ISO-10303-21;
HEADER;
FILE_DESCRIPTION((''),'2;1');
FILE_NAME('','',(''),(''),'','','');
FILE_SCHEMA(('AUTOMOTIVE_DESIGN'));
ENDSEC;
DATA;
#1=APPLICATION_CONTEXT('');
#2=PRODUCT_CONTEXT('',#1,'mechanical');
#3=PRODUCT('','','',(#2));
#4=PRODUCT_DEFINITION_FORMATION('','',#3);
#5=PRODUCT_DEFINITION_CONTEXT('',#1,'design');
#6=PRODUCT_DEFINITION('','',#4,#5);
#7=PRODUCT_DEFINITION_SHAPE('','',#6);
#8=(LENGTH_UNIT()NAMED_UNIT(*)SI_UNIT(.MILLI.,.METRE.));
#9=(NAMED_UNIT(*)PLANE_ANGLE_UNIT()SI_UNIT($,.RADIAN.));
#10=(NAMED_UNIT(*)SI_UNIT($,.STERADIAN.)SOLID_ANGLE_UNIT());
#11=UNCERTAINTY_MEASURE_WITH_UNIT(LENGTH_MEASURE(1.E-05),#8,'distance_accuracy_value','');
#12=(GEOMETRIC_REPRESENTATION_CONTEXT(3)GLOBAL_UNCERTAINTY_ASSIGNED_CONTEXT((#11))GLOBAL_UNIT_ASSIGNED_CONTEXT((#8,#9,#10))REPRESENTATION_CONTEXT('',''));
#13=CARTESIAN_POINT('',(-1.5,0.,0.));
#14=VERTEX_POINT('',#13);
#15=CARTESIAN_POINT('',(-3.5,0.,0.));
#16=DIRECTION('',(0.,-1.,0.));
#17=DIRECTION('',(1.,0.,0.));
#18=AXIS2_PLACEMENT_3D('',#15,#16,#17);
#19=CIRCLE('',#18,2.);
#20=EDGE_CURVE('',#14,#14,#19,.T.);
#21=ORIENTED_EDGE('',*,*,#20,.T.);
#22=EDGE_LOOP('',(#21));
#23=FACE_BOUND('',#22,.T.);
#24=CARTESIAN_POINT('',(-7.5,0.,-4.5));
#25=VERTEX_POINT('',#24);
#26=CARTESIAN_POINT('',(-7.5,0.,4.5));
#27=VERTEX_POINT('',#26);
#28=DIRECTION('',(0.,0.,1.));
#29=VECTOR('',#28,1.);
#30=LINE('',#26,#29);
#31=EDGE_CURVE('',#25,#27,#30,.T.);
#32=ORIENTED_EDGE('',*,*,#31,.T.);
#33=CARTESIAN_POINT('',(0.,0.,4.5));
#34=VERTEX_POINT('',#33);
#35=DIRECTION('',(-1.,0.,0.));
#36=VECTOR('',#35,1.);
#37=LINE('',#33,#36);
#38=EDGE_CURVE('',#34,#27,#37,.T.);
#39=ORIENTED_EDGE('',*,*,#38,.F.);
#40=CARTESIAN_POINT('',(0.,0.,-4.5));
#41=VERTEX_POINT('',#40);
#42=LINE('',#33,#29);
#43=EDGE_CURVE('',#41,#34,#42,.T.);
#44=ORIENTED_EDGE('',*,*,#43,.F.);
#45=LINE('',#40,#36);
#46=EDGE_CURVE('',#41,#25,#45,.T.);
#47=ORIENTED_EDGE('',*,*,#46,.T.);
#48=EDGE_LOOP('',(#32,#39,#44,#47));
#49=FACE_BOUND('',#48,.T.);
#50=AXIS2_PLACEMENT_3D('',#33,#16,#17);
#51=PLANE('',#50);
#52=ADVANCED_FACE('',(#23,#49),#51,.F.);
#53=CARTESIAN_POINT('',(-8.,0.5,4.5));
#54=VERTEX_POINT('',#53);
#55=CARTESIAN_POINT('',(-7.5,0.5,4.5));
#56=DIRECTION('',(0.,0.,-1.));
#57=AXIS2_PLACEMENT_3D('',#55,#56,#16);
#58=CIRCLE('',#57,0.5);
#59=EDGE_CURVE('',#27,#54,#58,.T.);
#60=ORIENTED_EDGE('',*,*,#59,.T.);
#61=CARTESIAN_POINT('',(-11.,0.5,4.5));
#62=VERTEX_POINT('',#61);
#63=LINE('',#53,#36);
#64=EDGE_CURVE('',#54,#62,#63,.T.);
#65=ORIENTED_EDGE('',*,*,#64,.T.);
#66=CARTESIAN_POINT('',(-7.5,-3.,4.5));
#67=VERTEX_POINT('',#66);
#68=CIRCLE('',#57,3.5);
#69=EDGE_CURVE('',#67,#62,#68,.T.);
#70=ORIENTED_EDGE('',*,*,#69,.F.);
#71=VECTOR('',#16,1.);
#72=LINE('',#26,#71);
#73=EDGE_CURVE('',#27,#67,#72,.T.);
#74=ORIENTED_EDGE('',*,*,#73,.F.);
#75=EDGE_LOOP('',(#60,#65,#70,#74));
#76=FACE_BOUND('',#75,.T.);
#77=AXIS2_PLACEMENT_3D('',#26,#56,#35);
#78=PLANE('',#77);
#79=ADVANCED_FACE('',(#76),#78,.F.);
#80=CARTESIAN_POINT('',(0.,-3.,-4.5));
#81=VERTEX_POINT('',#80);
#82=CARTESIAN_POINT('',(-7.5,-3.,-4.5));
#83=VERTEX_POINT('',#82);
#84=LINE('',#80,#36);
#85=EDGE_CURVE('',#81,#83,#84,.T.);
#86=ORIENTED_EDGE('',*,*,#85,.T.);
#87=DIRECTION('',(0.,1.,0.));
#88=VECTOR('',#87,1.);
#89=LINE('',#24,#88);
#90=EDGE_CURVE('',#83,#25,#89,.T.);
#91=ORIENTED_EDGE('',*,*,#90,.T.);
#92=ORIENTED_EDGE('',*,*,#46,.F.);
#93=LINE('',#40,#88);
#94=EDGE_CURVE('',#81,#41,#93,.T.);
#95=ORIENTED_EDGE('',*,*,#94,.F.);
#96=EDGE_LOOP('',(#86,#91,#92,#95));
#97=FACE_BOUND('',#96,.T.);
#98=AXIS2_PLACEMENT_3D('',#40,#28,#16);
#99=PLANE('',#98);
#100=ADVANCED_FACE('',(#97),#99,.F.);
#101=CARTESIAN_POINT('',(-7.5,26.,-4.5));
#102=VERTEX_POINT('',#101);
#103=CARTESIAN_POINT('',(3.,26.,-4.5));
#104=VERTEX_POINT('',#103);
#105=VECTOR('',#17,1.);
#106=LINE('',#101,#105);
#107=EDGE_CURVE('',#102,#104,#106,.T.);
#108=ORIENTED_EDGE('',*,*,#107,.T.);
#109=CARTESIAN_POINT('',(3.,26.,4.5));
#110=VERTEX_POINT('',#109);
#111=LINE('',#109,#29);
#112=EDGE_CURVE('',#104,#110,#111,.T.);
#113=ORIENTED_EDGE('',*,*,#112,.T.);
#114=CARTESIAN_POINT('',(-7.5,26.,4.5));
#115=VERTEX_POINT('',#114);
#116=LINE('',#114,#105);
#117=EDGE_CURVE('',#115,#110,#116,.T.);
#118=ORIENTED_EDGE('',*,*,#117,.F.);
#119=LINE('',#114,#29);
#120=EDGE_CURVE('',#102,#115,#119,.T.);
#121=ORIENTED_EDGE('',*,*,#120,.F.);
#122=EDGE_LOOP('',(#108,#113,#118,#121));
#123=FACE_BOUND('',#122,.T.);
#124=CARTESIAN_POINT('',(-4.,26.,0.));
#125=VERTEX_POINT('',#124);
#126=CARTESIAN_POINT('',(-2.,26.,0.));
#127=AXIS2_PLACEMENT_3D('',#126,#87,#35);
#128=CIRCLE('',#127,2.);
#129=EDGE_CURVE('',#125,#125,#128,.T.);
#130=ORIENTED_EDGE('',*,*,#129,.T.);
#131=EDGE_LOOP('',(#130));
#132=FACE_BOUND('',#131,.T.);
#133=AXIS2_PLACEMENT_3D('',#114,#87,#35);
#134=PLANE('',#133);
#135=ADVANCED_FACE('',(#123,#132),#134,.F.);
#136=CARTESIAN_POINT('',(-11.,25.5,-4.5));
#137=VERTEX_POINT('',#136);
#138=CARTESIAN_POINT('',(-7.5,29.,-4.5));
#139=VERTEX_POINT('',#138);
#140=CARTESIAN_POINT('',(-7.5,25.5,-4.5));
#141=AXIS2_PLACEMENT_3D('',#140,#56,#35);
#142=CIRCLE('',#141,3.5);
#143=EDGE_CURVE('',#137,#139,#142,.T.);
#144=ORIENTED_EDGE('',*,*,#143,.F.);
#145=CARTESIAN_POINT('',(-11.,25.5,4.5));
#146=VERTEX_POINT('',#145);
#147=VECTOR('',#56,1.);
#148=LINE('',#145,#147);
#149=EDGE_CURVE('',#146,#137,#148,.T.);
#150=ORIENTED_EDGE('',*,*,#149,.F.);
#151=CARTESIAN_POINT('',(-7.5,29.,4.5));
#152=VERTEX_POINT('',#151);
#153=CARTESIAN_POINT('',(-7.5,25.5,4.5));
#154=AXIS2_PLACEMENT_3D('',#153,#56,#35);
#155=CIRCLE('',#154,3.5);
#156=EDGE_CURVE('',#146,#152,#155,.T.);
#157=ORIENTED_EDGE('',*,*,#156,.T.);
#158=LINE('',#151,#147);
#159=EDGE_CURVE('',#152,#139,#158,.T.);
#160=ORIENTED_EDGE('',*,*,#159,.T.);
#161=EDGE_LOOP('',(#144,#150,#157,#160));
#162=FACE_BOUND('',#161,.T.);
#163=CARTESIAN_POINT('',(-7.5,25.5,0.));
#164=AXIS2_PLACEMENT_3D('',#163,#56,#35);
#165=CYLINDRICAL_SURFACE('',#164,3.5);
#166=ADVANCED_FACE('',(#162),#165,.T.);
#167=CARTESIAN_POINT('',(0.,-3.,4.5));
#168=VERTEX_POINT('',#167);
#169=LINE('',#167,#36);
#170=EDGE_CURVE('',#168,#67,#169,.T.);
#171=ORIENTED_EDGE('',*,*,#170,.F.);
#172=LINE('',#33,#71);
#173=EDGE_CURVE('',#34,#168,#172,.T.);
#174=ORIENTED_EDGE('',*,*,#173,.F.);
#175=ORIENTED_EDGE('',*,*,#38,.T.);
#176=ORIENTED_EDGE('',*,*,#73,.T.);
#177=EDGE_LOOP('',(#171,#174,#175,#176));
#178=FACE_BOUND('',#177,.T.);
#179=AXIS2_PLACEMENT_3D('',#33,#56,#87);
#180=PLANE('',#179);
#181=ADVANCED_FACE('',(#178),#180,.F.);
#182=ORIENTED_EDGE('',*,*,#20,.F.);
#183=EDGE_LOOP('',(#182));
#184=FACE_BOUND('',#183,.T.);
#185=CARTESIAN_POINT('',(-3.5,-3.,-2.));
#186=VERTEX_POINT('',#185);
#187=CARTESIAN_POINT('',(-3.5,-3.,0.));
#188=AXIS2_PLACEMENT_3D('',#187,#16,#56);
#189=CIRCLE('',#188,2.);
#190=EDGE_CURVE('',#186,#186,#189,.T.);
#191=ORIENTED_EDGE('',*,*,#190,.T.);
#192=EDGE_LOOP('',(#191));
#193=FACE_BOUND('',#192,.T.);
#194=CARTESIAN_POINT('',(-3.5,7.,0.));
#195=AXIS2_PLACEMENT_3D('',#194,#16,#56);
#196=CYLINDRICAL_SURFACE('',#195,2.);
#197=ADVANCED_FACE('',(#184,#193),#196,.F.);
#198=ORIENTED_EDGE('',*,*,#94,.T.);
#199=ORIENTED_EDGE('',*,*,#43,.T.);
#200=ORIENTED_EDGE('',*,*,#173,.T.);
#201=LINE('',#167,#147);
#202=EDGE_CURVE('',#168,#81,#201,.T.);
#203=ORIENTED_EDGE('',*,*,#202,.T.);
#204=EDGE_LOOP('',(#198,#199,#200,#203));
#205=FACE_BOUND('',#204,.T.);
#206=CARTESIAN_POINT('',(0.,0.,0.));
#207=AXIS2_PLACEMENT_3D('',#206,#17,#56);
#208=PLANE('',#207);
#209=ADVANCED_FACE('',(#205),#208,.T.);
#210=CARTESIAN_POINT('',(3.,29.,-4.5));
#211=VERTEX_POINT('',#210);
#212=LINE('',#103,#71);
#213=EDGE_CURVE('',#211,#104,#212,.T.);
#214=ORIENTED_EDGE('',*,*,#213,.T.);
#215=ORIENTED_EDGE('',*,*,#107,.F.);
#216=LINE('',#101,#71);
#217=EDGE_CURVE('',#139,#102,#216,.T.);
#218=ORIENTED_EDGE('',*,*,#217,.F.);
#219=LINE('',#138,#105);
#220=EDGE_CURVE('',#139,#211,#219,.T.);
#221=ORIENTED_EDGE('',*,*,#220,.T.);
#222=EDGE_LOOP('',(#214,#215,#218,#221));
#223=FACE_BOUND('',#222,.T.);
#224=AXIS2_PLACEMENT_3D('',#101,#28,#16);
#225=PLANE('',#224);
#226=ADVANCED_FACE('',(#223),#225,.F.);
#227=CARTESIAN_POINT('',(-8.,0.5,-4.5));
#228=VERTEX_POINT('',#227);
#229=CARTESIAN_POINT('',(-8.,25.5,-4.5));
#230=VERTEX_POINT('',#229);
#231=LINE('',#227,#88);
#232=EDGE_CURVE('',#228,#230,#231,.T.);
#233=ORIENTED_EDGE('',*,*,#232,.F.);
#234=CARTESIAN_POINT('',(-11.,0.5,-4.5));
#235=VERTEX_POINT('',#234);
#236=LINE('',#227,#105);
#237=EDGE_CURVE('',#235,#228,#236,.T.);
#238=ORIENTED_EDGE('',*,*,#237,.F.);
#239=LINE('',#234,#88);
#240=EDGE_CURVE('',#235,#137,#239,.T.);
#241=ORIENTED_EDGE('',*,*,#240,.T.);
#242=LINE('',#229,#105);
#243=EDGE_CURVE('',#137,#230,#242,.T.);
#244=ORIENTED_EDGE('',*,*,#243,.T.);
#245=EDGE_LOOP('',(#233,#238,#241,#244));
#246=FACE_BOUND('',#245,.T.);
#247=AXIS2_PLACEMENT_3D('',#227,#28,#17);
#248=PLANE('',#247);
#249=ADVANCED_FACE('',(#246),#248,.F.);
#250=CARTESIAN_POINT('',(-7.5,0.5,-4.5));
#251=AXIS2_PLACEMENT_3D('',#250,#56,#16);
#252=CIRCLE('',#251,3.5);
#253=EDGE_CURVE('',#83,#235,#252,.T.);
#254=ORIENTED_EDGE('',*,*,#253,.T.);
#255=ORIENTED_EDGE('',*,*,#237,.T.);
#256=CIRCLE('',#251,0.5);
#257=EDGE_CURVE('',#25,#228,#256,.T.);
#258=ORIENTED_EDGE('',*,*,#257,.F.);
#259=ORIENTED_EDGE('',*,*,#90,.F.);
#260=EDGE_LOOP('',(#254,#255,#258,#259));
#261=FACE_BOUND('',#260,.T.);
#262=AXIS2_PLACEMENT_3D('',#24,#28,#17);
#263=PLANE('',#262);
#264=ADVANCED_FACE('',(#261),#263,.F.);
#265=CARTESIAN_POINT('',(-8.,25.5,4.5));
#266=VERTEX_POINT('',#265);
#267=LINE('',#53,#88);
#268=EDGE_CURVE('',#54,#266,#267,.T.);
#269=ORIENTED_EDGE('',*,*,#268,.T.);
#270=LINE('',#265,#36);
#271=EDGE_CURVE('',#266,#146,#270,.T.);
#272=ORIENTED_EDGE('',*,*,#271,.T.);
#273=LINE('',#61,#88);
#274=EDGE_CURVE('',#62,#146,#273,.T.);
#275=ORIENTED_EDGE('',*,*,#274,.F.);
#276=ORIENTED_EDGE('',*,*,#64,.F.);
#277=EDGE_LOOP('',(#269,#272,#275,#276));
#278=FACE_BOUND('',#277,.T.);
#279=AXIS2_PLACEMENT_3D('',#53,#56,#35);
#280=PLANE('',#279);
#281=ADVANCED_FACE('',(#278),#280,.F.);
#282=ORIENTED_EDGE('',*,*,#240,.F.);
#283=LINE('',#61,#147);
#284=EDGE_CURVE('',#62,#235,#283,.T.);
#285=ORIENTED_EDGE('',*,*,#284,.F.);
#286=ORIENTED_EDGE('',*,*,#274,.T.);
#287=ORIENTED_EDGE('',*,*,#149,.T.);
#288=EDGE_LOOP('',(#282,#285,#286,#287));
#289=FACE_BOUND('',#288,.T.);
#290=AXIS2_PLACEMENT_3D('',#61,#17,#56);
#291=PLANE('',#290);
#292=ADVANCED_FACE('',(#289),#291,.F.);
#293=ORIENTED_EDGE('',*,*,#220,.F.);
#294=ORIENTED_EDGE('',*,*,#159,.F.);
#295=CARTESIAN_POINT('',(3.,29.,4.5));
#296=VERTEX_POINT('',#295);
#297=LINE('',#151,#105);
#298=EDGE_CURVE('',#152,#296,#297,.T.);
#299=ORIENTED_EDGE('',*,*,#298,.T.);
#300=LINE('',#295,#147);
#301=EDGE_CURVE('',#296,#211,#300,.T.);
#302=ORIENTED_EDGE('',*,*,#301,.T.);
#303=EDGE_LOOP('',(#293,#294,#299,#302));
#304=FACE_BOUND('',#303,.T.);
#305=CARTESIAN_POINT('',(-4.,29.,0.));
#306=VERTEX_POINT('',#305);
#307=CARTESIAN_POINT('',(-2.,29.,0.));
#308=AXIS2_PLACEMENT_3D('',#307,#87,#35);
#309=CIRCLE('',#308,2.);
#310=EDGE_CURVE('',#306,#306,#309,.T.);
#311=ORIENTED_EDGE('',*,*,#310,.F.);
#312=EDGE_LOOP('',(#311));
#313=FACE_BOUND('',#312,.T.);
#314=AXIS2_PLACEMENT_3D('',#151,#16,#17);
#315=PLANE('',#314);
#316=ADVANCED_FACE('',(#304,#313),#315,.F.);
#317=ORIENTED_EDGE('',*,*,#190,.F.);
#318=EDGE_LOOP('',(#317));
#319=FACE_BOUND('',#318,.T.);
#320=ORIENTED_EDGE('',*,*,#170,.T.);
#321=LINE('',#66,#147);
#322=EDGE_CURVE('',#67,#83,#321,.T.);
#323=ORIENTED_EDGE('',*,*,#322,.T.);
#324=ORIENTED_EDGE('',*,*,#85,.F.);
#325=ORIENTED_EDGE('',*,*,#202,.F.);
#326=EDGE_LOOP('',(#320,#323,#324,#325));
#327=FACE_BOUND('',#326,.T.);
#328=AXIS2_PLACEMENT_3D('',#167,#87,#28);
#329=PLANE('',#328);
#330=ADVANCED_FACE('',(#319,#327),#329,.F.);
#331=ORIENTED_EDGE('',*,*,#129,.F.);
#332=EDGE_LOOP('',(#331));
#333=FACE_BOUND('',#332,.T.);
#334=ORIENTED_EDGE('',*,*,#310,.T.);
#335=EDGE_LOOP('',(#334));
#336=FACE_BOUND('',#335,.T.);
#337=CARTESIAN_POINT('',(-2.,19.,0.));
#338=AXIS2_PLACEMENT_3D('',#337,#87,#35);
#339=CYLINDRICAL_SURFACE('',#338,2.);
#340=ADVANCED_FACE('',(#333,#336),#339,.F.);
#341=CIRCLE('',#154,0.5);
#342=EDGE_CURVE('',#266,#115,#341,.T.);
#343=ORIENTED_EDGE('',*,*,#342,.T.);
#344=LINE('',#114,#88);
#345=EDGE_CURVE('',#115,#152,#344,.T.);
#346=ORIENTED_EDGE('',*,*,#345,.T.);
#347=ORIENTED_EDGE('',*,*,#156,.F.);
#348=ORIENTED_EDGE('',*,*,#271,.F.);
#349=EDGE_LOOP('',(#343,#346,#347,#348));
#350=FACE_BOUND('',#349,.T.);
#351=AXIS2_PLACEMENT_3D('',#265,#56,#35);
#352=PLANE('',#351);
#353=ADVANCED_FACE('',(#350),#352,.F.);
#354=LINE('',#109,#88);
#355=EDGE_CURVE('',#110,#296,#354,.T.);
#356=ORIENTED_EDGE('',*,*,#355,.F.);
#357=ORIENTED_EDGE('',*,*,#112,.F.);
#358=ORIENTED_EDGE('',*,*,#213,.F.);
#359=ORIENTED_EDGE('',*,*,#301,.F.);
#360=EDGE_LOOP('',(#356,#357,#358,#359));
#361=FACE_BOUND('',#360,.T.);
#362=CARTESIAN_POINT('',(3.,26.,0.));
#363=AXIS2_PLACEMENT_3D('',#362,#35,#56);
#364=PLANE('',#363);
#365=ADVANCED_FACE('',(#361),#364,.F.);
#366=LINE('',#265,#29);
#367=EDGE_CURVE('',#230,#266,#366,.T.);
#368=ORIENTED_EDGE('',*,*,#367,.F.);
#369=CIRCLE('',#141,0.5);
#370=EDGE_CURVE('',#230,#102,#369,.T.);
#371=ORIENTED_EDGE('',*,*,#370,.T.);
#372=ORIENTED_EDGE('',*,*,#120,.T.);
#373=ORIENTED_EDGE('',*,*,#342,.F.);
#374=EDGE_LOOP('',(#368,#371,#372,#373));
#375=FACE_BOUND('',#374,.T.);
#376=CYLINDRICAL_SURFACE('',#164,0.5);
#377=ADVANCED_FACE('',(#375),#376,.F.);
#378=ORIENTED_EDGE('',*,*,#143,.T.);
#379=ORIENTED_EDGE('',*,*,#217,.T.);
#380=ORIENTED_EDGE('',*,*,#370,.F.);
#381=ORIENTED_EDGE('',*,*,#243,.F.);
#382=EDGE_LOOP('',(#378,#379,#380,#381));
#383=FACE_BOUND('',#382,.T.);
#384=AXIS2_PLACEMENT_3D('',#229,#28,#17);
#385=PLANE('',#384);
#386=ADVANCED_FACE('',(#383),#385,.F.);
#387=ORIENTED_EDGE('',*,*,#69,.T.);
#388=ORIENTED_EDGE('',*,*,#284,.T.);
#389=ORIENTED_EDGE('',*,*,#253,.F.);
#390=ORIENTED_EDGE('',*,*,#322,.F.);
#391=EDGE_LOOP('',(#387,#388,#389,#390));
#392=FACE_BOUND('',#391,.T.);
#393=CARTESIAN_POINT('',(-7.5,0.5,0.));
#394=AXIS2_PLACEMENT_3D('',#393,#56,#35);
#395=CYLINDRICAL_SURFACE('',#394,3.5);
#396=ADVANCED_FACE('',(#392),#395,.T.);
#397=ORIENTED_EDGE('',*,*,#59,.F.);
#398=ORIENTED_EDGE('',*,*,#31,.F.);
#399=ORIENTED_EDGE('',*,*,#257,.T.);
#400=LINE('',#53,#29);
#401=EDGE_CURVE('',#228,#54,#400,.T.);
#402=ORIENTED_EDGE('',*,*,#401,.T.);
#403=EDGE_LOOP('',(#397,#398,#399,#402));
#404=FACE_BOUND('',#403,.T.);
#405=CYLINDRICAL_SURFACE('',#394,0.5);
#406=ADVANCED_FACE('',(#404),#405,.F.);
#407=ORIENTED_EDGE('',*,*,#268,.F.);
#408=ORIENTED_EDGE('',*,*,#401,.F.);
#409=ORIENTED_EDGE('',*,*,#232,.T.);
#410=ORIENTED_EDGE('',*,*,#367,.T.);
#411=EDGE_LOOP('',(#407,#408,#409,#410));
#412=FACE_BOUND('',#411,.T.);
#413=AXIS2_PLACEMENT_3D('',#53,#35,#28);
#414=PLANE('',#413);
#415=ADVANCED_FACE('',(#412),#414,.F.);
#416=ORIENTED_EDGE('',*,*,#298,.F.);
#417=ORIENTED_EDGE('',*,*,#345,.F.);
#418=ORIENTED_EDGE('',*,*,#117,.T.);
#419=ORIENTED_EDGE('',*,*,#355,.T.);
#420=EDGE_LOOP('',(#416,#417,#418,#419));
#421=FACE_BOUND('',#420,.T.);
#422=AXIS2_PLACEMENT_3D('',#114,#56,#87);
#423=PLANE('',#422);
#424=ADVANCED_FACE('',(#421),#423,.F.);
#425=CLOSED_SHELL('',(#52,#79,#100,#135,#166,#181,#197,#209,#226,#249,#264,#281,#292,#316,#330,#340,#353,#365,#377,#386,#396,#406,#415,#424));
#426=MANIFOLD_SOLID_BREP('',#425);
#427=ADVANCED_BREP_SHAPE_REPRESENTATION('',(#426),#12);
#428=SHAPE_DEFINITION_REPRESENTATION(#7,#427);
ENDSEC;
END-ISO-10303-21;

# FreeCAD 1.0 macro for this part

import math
import FreeCAD as App
import Part
import Sketcher

V = App.Vector
Q = App.Units.Quantity

doc = App.newDocument("Part")
params = doc.addObject("Spreadsheet::Sheet", "Params")
for row, (alias, value) in enumerate([
    ("sketch1_width", "3 mm"),
    ("sketch1_height", "9 mm"),
    ("sketch2_radius", "0.5 mm"),
    ("sketch2_height", "25 mm"),
    ("sketch2_width", "7.5 mm"),
    ("sketch2_width2", "10.5 mm"),
    ("sketch3_diameter", "4 mm"),
    ("pocket1_length", "10 mm"),
    ("sketch4_diameter", "4 mm"),
    ("pocket2_length", "10 mm"),
], start=1):
    params.set(f"A{row}", alias)
    params.set(f"B{row}", "=" + value)
    params.setAlias(f"B{row}", alias)

body = doc.addObject("PartDesign::Body", "Body")

sketch1 = body.newObject("Sketcher::SketchObject", "Sketch")
sketch1.AttachmentSupport = (doc.getObject("YZ_Plane"), [""])
sketch1.MapMode = "FlatFace"
sketch1.addGeometry([
    Part.LineSegment(V(0, 4.5, 0), V(-3, 4.5, 0)),
    Part.LineSegment(V(-3, 4.5, 0), V(-3, -4.5, 0)),
    Part.LineSegment(V(-3, -4.5, 0), V(0, -4.5, 0)),
    Part.LineSegment(V(0, -4.5, 0), V(0, 4.5, 0)),
], False)
sketch1.addConstraint([
    Sketcher.Constraint("Coincident", 0, 2, 1, 1),
    Sketcher.Constraint("Coincident", 1, 2, 2, 1),
    Sketcher.Constraint("Coincident", 2, 2, 3, 1),
    Sketcher.Constraint("Coincident", 3, 2, 0, 1),
    Sketcher.Constraint("Horizontal", 0),
    Sketcher.Constraint("Vertical", 1),
    Sketcher.Constraint("Horizontal", 2),
    Sketcher.Constraint("Vertical", 3),
    Sketcher.Constraint("Symmetric", 2, 2, 3, 2, -1, 1),
    Sketcher.Constraint("DistanceX", 0, 2, 0, 1, Q("3 mm")),
    Sketcher.Constraint("DistanceY", 1, 2, 1, 1, Q("9 mm")),
])
sketch1.setExpression("Constraints[9]", "Params.sketch1_width")
sketch1.setExpression("Constraints[10]", "Params.sketch1_height")

sketch2 = body.newObject("Sketcher::SketchObject", "Sketch001")
sketch2.AttachmentSupport = (doc.getObject("XY_Plane"), [""])
sketch2.MapMode = "FlatFace"
sketch2.addGeometry([
    Part.LineSegment(V(0, 0, 0), V(-7.5, 0, 0)),
    Part.ArcOfCircle(Part.Circle(V(-7.5, 0.5, 0), V(0, 0, 1), 0.5), math.radians(180), math.radians(270)),
    Part.LineSegment(V(-8, 0.5, 0), V(-8, 25.5, 0)),
    Part.ArcOfCircle(Part.Circle(V(-7.5, 25.5, 0), V(0, 0, 1), 0.5), math.radians(90), math.radians(180)),
    Part.LineSegment(V(-7.5, 26, 0), V(3, 26, 0)),
], False)
sketch2.addConstraint([
    Sketcher.Constraint("Tangent", 0, 2, 1, 2),
    Sketcher.Constraint("Tangent", 1, 1, 2, 1),
    Sketcher.Constraint("Tangent", 2, 2, 3, 2),
    Sketcher.Constraint("Tangent", 3, 1, 4, 1),
    Sketcher.Constraint("Horizontal", 0),
    Sketcher.Constraint("Vertical", 2),
    Sketcher.Constraint("Horizontal", 4),
    Sketcher.Constraint("Coincident", 0, 1, -1, 1),
    Sketcher.Constraint("Equal", 1, 3),
    Sketcher.Constraint("Radius", 1, Q("0.5 mm")),
    Sketcher.Constraint("DistanceY", 2, 1, 2, 2, Q("25 mm")),
    Sketcher.Constraint("DistanceX", 0, 2, 0, 1, Q("7.5 mm")),
    Sketcher.Constraint("DistanceX", 4, 1, 4, 2, Q("10.5 mm")),
])
sketch2.setExpression("Constraints[9]", "Params.sketch2_radius")
sketch2.setExpression("Constraints[10]", "Params.sketch2_height")
sketch2.setExpression("Constraints[11]", "Params.sketch2_width")
sketch2.setExpression("Constraints[12]", "Params.sketch2_width2")
doc.recompute()

additivepipe = body.newObject("PartDesign::AdditivePipe", "AdditivePipe")
additivepipe.Profile = sketch1
additivepipe.Spine = (sketch2, ["Edge1", "Edge2", "Edge3", "Edge4", "Edge5"])

sketch3 = body.newObject("Sketcher::SketchObject", "Sketch002")
sketch3.AttachmentSupport = (doc.getObject("XZ_Plane"), [""])
sketch3.MapMode = "FlatFace"
sketch3.AttachmentOffset = App.Placement(V(0, 0, -29), App.Rotation())
sketch3.addGeometry(Part.Circle(V(-2, 0, 0), V(0, 0, 1), 2), False)
sketch3.addConstraint([
    Sketcher.Constraint("PointOnObject", 0, 3, -1),
    Sketcher.Constraint("Diameter", 0, Q("4 mm")),
    Sketcher.Constraint("DistanceX", 0, 3, -1, 1, Q("2 mm")),
])
sketch3.setExpression("Constraints[1]", "Params.sketch3_diameter")
pocket1 = body.newObject("PartDesign::Pocket", "Pocket")
pocket1.Profile = sketch3
pocket1.setExpression("Length", "Params.pocket1_length")
pocket1.Reversed = True

sketch4 = body.newObject("Sketcher::SketchObject", "Sketch003")
sketch4.AttachmentSupport = (doc.getObject("XZ_Plane"), [""])
sketch4.MapMode = "FlatFace"
sketch4.AttachmentOffset = App.Placement(V(0, 0, 3), App.Rotation())
sketch4.addGeometry(Part.Circle(V(-3.5, 0, 0), V(0, 0, 1), 2), False)
sketch4.addConstraint([
    Sketcher.Constraint("PointOnObject", 0, 3, -1),
    Sketcher.Constraint("Diameter", 0, Q("4 mm")),
    Sketcher.Constraint("DistanceX", 0, 3, -1, 1, Q("3.5 mm")),
])
sketch4.setExpression("Constraints[1]", "Params.sketch4_diameter")
pocket2 = body.newObject("PartDesign::Pocket", "Pocket001")
pocket2.Profile = sketch4
pocket2.setExpression("Length", "Params.pocket2_length")

doc.recompute()
